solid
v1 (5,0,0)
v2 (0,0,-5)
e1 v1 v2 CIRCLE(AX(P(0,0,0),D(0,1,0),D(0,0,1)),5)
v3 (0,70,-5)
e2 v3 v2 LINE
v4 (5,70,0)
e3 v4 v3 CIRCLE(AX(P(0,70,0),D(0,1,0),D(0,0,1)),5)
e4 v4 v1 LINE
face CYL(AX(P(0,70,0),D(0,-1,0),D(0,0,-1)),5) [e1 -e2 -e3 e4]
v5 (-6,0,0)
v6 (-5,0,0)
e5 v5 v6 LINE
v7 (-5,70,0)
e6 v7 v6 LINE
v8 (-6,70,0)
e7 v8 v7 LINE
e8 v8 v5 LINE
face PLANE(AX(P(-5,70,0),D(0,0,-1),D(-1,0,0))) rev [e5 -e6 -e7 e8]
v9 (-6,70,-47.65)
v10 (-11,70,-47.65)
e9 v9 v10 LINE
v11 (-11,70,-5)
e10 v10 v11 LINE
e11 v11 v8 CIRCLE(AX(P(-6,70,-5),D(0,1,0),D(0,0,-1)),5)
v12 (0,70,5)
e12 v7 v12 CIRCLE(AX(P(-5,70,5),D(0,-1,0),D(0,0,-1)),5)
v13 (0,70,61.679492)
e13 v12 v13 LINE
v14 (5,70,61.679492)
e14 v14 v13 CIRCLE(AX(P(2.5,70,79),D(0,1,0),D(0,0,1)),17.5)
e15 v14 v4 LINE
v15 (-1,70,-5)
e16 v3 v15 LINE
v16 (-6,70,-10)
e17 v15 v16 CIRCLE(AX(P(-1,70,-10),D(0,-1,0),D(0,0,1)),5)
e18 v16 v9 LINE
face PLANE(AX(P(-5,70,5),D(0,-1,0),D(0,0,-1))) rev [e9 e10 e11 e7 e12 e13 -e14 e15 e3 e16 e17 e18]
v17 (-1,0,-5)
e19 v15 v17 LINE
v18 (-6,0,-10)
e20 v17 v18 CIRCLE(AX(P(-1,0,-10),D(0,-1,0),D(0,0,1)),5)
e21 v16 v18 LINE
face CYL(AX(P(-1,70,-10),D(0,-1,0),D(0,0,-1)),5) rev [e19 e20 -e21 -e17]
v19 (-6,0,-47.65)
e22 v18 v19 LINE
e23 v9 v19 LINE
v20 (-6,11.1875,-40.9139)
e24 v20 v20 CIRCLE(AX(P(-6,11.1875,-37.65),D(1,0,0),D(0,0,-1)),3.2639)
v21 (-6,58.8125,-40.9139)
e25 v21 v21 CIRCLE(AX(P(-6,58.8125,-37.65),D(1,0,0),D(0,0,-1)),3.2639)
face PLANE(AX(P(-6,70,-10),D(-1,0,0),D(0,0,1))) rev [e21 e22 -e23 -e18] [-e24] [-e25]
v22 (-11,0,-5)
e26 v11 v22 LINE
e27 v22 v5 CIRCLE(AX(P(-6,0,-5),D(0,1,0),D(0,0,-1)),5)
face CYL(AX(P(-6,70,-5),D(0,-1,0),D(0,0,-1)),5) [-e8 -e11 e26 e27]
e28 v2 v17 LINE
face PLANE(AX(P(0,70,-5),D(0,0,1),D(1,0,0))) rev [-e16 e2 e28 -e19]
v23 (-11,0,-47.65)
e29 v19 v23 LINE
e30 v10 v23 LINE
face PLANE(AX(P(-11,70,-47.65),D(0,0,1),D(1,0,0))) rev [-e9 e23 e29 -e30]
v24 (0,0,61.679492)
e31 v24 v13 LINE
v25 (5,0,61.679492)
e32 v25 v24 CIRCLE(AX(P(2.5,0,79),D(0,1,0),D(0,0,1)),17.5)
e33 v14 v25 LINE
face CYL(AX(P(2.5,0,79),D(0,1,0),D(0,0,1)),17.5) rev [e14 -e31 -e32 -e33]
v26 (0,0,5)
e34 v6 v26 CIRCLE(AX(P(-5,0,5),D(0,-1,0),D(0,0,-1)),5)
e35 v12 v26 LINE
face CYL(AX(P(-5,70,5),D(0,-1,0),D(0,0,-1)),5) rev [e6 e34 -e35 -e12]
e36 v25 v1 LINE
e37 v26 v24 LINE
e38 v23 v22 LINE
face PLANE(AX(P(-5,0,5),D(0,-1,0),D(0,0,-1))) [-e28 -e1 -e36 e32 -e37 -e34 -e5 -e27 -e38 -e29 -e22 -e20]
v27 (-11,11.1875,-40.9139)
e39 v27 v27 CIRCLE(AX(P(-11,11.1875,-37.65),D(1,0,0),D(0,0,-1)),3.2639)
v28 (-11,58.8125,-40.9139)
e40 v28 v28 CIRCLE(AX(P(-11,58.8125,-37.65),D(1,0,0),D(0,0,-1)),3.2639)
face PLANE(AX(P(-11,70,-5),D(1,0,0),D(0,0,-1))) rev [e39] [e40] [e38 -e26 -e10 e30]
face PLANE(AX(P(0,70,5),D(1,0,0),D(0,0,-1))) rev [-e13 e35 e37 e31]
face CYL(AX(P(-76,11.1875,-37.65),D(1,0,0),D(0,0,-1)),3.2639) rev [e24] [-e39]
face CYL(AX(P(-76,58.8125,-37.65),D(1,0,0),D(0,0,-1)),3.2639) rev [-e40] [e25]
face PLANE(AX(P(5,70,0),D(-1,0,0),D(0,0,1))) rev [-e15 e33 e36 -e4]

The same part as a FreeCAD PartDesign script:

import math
import FreeCAD as App
import Part
import Sketcher
from FreeCAD import Vector
Q = App.Units.Quantity

doc = App.newDocument("Part")
body = doc.addObject("PartDesign::Body", "Body")

sketch1 = body.newObject("Sketcher::SketchObject", "Sketch")
sketch1.AttachmentSupport = (doc.getObject("XZ_Plane"), [""])
sketch1.MapMode = "FlatFace"
sketch1.addGeometry(Part.LineSegment(Vector(0, 5, 0), Vector(0, 85, 0)), False)
sketch1.addGeometry(Part.LineSegment(Vector(0, 85, 0), Vector(5, 85, 0)), False)
sketch1.addGeometry(Part.LineSegment(Vector(5, 85, 0), Vector(5, 0, 0)), False)
sketch1.addGeometry(Part.ArcOfCircle(Part.Circle(Vector(0, 0, 0), Vector(0, 0, 1), 5), math.radians(-90), math.radians(0)), False)
sketch1.addGeometry(Part.LineSegment(Vector(0, -5, 0), Vector(-1, -5, 0)), False)
sketch1.addGeometry(Part.ArcOfCircle(Part.Circle(Vector(-1, -10, 0), Vector(0, 0, 1), 5), math.radians(90), math.radians(180)), False)
sketch1.addGeometry(Part.LineSegment(Vector(-6, -10, 0), Vector(-6, -47.6, 0)), False)
sketch1.addGeometry(Part.LineSegment(Vector(-6, -47.6, 0), Vector(-11, -47.6, 0)), False)
sketch1.addGeometry(Part.LineSegment(Vector(-11, -47.6, 0), Vector(-11, -5, 0)), False)
sketch1.addGeometry(Part.ArcOfCircle(Part.Circle(Vector(-6, -5, 0), Vector(0, 0, 1), 5), math.radians(90), math.radians(180)), False)
sketch1.addGeometry(Part.LineSegment(Vector(-6, 0, 0), Vector(-5, 0, 0)), False)
sketch1.addGeometry(Part.ArcOfCircle(Part.Circle(Vector(-5, 5, 0), Vector(0, 0, 1), 5), math.radians(-90), math.radians(0)), False)
sketch1.addConstraint(Sketcher.Constraint("Coincident", 0, 2, 1, 1))
sketch1.addConstraint(Sketcher.Constraint("Coincident", 1, 2, 2, 1))
sketch1.addConstraint(Sketcher.Constraint("Tangent", 2, 2, 3, 2))
sketch1.addConstraint(Sketcher.Constraint("Tangent", 3, 1, 4, 1))
sketch1.addConstraint(Sketcher.Constraint("Tangent", 4, 2, 5, 1))
sketch1.addConstraint(Sketcher.Constraint("Tangent", 5, 2, 6, 1))
sketch1.addConstraint(Sketcher.Constraint("Coincident", 6, 2, 7, 1))
sketch1.addConstraint(Sketcher.Constraint("Coincident", 7, 2, 8, 1))
sketch1.addConstraint(Sketcher.Constraint("Tangent", 8, 2, 9, 2))
sketch1.addConstraint(Sketcher.Constraint("Tangent", 9, 1, 10, 1))
sketch1.addConstraint(Sketcher.Constraint("Tangent", 10, 2, 11, 1))
sketch1.addConstraint(Sketcher.Constraint("Tangent", 11, 2, 0, 1))
sketch1.addConstraint(Sketcher.Constraint("Vertical", 0))
sketch1.addConstraint(Sketcher.Constraint("Horizontal", 1))
sketch1.addConstraint(Sketcher.Constraint("Vertical", 2))
sketch1.addConstraint(Sketcher.Constraint("Horizontal", 4))
sketch1.addConstraint(Sketcher.Constraint("Vertical", 6))
sketch1.addConstraint(Sketcher.Constraint("Horizontal", 7))
sketch1.addConstraint(Sketcher.Constraint("Vertical", 8))
sketch1.addConstraint(Sketcher.Constraint("Horizontal", 10))
sketch1.addConstraint(Sketcher.Constraint("Coincident", 3, 3, -1, 1))
sketch1.addConstraint(Sketcher.Constraint("Equal", 3, 5))
sketch1.addConstraint(Sketcher.Constraint("Equal", 5, 9))
sketch1.addConstraint(Sketcher.Constraint("Equal", 9, 11))
sketch1.addConstraint(Sketcher.Constraint("Symmetric", 2, 2, 10, 2, -1, 1))
sketch1.addConstraint(Sketcher.Constraint("Vertical", 9, 3, 5, 2))
sketch1.addConstraint(Sketcher.Constraint("Radius", 3, Q("5 mm")))
sketch1.addConstraint(Sketcher.Constraint("DistanceX", 4, 2, 4, 1, Q("1 mm")))
sketch1.addConstraint(Sketcher.Constraint("DistanceY", 0, 1, 0, 2, Q("80 mm")))
sketch1.addConstraint(Sketcher.Constraint("DistanceY", 6, 2, 6, 1, Q("37.65 mm")))
pad1 = body.newObject("PartDesign::Pad", "Pad")
pad1.Profile = sketch1
pad1.Length = 70
pad1.Reversed = True

sketch2 = body.newObject("Sketcher::SketchObject", "Sketch001")
sketch2.AttachmentSupport = (doc.getObject("YZ_Plane"), [""])
sketch2.MapMode = "FlatFace"
sketch2.AttachmentOffset = App.Placement(Vector(0, 0, -6), App.Rotation())
sketch2.addGeometry(Part.Circle(Vector(58.8, -37.6, 0), Vector(0, 0, 1), 3.3), False)
sketch2.addGeometry(Part.Circle(Vector(11.2, -37.6, 0), Vector(0, 0, 1), 3.3), False)
sketch2.addConstraint(Sketcher.Constraint("Equal", 0, 1))
sketch2.addConstraint(Sketcher.Constraint("Horizontal", 0, 3, 1, 3))
sketch2.addConstraint(Sketcher.Constraint("Diameter", 0, Q("6.5278 mm")))
sketch2.addConstraint(Sketcher.Constraint("DistanceY", 0, 3, -1, 1, Q("37.65 mm")))
sketch2.addConstraint(Sketcher.Constraint("DistanceX", 1, 3, 0, 3, Q("47.625 mm")))
sketch2.addConstraint(Sketcher.Constraint("DistanceX", -1, 1, 0, 3, Q("58.8125 mm")))
pocket1 = body.newObject("PartDesign::Pocket", "Pocket")
pocket1.Profile = sketch2
pocket1.Length = 70

sketch3 = body.newObject("Sketcher::SketchObject", "Sketch002")
sketch3.AttachmentSupport = (doc.getObject("XZ_Plane"), [""])
sketch3.MapMode = "FlatFace"
sketch3.AttachmentOffset = App.Placement(Vector(0, 0, -70), App.Rotation())
sketch3.addGeometry(Part.Circle(Vector(2, 79, 0), Vector(0, 0, 1), 18), False)
sketch3.addConstraint(Sketcher.Constraint("Diameter", 0, Q("35 mm")))
sketch3.addConstraint(Sketcher.Constraint("DistanceY", -1, 1, 0, 3, Q("79 mm")))
sketch3.addConstraint(Sketcher.Constraint("DistanceX", -1, 1, 0, 3, Q("2.5 mm")))
pocket2 = body.newObject("PartDesign::Pocket", "Pocket001")
pocket2.Profile = sketch3
pocket2.Type = "ThroughAll"
pocket2.Reversed = True

doc.recompute()
